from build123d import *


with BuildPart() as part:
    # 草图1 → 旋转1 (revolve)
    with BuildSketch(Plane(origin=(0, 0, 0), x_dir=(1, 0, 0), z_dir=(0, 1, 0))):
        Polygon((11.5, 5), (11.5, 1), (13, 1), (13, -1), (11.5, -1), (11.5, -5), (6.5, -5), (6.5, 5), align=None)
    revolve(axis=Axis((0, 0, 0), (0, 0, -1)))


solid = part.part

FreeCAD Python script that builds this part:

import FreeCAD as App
import Part
import Sketcher
from FreeCAD import Vector


def add_polygon(sketch, points):
    """Adds a closed chain of lines whose ends are joined by coincident constraints."""
    first, n = sketch.GeometryCount, len(points)
    for a, b in zip(points, points[1:] + points[:1]):
        sketch.addGeometry(Part.LineSegment(App.Vector(*a, 0), App.Vector(*b, 0)), False)
    for i in range(n):
        sketch.addConstraint(Sketcher.Constraint("Coincident", first + i, 2, first + (i + 1) % n, 1))

doc = App.newDocument("Part")
body = doc.addObject("PartDesign::Body", "Body")

sketch1 = body.newObject("Sketcher::SketchObject", "Sketch")
sketch1.AttachmentSupport = (doc.getObject("XZ_Plane"), [""])
sketch1.MapMode = "FlatFace"
add_polygon(sketch1, [(11.5, -1), (11.5, -5), (6.5, -5), (6.5, 5), (11.5, 5), (11.5, 1), (13, 1), (13, -1)])
sketch1.addConstraint([
    Sketcher.Constraint("Vertical", 0),
    Sketcher.Constraint("Horizontal", 1),
    Sketcher.Constraint("Vertical", 2),
    Sketcher.Constraint("Horizontal", 3),
    Sketcher.Constraint("Vertical", 4),
    Sketcher.Constraint("Horizontal", 5),
    Sketcher.Constraint("Vertical", 6),
    Sketcher.Constraint("Horizontal", 7),
    Sketcher.Constraint("Symmetric", 0, 2, 3, 2, -1),
    Sketcher.Constraint("Equal", 0, 4),
    Sketcher.Constraint("DistanceX", 1, 2, 1, 1, 5.0),
    Sketcher.Constraint("DistanceY", 0, 2, 0, 1, 4.0),
    Sketcher.Constraint("DistanceY", 2, 1, 2, 2, 10.0),
    Sketcher.Constraint("DistanceX", 5, 1, 5, 2, 1.5),
    Sketcher.Constraint("DistanceX", -1, 1, 5, 2, 13.0),
])
revolution = body.newObject("PartDesign::Revolution", "Revolution")
revolution.Profile = sketch1
revolution.ReferenceAxis = (sketch1, ["V_Axis"])
revolution.Angle = 360

doc.recompute()
